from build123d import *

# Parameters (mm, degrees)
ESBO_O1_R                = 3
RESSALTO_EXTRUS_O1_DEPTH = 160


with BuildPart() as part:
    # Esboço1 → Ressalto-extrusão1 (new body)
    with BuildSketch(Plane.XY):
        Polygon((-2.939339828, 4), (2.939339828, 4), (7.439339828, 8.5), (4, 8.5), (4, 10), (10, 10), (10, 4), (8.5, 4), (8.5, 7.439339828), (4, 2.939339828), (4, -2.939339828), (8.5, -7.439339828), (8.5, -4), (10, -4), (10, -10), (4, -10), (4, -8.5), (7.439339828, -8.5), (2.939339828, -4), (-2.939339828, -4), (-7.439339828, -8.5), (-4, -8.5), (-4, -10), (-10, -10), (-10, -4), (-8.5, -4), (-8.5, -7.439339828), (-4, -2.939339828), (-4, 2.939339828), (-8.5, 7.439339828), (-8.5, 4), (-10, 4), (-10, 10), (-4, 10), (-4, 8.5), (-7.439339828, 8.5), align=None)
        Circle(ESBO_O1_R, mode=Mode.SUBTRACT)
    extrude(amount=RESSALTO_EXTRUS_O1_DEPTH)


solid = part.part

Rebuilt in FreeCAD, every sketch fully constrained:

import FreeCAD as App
import Part
import Sketcher

doc = App.newDocument("Part")
body = doc.addObject("PartDesign::Body", "Body")

# Sketch on XY plane
sketch1 = body.newObject("Sketcher::SketchObject", "Sketch")
sketch1.AttachmentSupport = (doc.getObject("XY_Plane"), [""])
sketch1.MapMode = "FlatFace"
sketch1.addGeometry(Part.LineSegment(App.Vector(2.9, 4, 0), App.Vector(-2.9, 4, 0)), False)
sketch1.addGeometry(Part.LineSegment(App.Vector(-2.9, 4, 0), App.Vector(-7.4, 8.5, 0)), False)
sketch1.addGeometry(Part.LineSegment(App.Vector(-7.4, 8.5, 0), App.Vector(-4, 8.5, 0)), False)
sketch1.addGeometry(Part.LineSegment(App.Vector(-4, 8.5, 0), App.Vector(-4, 10, 0)), False)
sketch1.addGeometry(Part.LineSegment(App.Vector(-4, 10, 0), App.Vector(-10, 10, 0)), False)
sketch1.addGeometry(Part.LineSegment(App.Vector(-10, 10, 0), App.Vector(-10, 4, 0)), False)
sketch1.addGeometry(Part.LineSegment(App.Vector(-10, 4, 0), App.Vector(-8.5, 4, 0)), False)
sketch1.addGeometry(Part.LineSegment(App.Vector(-8.5, 4, 0), App.Vector(-8.5, 7.4, 0)), False)
sketch1.addGeometry(Part.LineSegment(App.Vector(-8.5, 7.4, 0), App.Vector(-4, 2.9, 0)), False)
sketch1.addGeometry(Part.LineSegment(App.Vector(-4, 2.9, 0), App.Vector(-4, -2.9, 0)), False)
sketch1.addGeometry(Part.LineSegment(App.Vector(-4, -2.9, 0), App.Vector(-8.5, -7.4, 0)), False)
sketch1.addGeometry(Part.LineSegment(App.Vector(-8.5, -7.4, 0), App.Vector(-8.5, -4, 0)), False)
sketch1.addGeometry(Part.LineSegment(App.Vector(-8.5, -4, 0), App.Vector(-10, -4, 0)), False)
sketch1.addGeometry(Part.LineSegment(App.Vector(-10, -4, 0), App.Vector(-10, -10, 0)), False)
sketch1.addGeometry(Part.LineSegment(App.Vector(-10, -10, 0), App.Vector(-4, -10, 0)), False)
sketch1.addGeometry(Part.LineSegment(App.Vector(-4, -10, 0), App.Vector(-4, -8.5, 0)), False)
sketch1.addGeometry(Part.LineSegment(App.Vector(-4, -8.5, 0), App.Vector(-7.4, -8.5, 0)), False)
sketch1.addGeometry(Part.LineSegment(App.Vector(-7.4, -8.5, 0), App.Vector(-2.9, -4, 0)), False)
sketch1.addGeometry(Part.LineSegment(App.Vector(-2.9, -4, 0), App.Vector(2.9, -4, 0)), False)
sketch1.addGeometry(Part.LineSegment(App.Vector(2.9, -4, 0), App.Vector(7.4, -8.5, 0)), False)
sketch1.addGeometry(Part.LineSegment(App.Vector(7.4, -8.5, 0), App.Vector(4, -8.5, 0)), False)
sketch1.addGeometry(Part.LineSegment(App.Vector(4, -8.5, 0), App.Vector(4, -10, 0)), False)
sketch1.addGeometry(Part.LineSegment(App.Vector(4, -10, 0), App.Vector(10, -10, 0)), False)
sketch1.addGeometry(Part.LineSegment(App.Vector(10, -10, 0), App.Vector(10, -4, 0)), False)
sketch1.addGeometry(Part.LineSegment(App.Vector(10, -4, 0), App.Vector(8.5, -4, 0)), False)
sketch1.addGeometry(Part.LineSegment(App.Vector(8.5, -4, 0), App.Vector(8.5, -7.4, 0)), False)
sketch1.addGeometry(Part.LineSegment(App.Vector(8.5, -7.4, 0), App.Vector(4, -2.9, 0)), False)
sketch1.addGeometry(Part.LineSegment(App.Vector(4, -2.9, 0), App.Vector(4, 2.9, 0)), False)
sketch1.addGeometry(Part.LineSegment(App.Vector(4, 2.9, 0), App.Vector(8.5, 7.4, 0)), False)
sketch1.addGeometry(Part.LineSegment(App.Vector(8.5, 7.4, 0), App.Vector(8.5, 4, 0)), False)
sketch1.addGeometry(Part.LineSegment(App.Vector(8.5, 4, 0), App.Vector(10, 4, 0)), False)
sketch1.addGeometry(Part.LineSegment(App.Vector(10, 4, 0), App.Vector(10, 10, 0)), False)
sketch1.addGeometry(Part.LineSegment(App.Vector(10, 10, 0), App.Vector(4, 10, 0)), False)
sketch1.addGeometry(Part.LineSegment(App.Vector(4, 10, 0), App.Vector(4, 8.5, 0)), False)
sketch1.addGeometry(Part.LineSegment(App.Vector(4, 8.5, 0), App.Vector(7.4, 8.5, 0)), False)
sketch1.addGeometry(Part.LineSegment(App.Vector(7.4, 8.5, 0), App.Vector(2.9, 4, 0)), False)
sketch1.addGeometry(Part.Circle(App.Vector(0, 0, 0), App.Vector(0, 0, 1), 3), False)
sketch1.addConstraint(Sketcher.Constraint("Coincident", 0, 2, 1, 1))
sketch1.addConstraint(Sketcher.Constraint("Coincident", 1, 2, 2, 1))
sketch1.addConstraint(Sketcher.Constraint("Coincident", 2, 2, 3, 1))
sketch1.addConstraint(Sketcher.Constraint("Coincident", 3, 2, 4, 1))
sketch1.addConstraint(Sketcher.Constraint("Coincident", 4, 2, 5, 1))
sketch1.addConstraint(Sketcher.Constraint("Coincident", 5, 2, 6, 1))
sketch1.addConstraint(Sketcher.Constraint("Coincident", 6, 2, 7, 1))
sketch1.addConstraint(Sketcher.Constraint("Coincident", 7, 2, 8, 1))
sketch1.addConstraint(Sketcher.Constraint("Coincident", 8, 2, 9, 1))
sketch1.addConstraint(Sketcher.Constraint("Coincident", 9, 2, 10, 1))
sketch1.addConstraint(Sketcher.Constraint("Coincident", 10, 2, 11, 1))
sketch1.addConstraint(Sketcher.Constraint("Coincident", 11, 2, 12, 1))
sketch1.addConstraint(Sketcher.Constraint("Coincident", 12, 2, 13, 1))
sketch1.addConstraint(Sketcher.Constraint("Coincident", 13, 2, 14, 1))
sketch1.addConstraint(Sketcher.Constraint("Coincident", 14, 2, 15, 1))
sketch1.addConstraint(Sketcher.Constraint("Coincident", 15, 2, 16, 1))
sketch1.addConstraint(Sketcher.Constraint("Coincident", 16, 2, 17, 1))
sketch1.addConstraint(Sketcher.Constraint("Coincident", 17, 2, 18, 1))
sketch1.addConstraint(Sketcher.Constraint("Coincident", 18, 2, 19, 1))
sketch1.addConstraint(Sketcher.Constraint("Coincident", 19, 2, 20, 1))
sketch1.addConstraint(Sketcher.Constraint("Coincident", 20, 2, 21, 1))
sketch1.addConstraint(Sketcher.Constraint("Coincident", 21, 2, 22, 1))
sketch1.addConstraint(Sketcher.Constraint("Coincident", 22, 2, 23, 1))
sketch1.addConstraint(Sketcher.Constraint("Coincident", 23, 2, 24, 1))
sketch1.addConstraint(Sketcher.Constraint("Coincident", 24, 2, 25, 1))
sketch1.addConstraint(Sketcher.Constraint("Coincident", 25, 2, 26, 1))
sketch1.addConstraint(Sketcher.Constraint("Coincident", 26, 2, 27, 1))
sketch1.addConstraint(Sketcher.Constraint("Coincident", 27, 2, 28, 1))
sketch1.addConstraint(Sketcher.Constraint("Coincident", 28, 2, 29, 1))
sketch1.addConstraint(Sketcher.Constraint("Coincident", 29, 2, 30, 1))
sketch1.addConstraint(Sketcher.Constraint("Coincident", 30, 2, 31, 1))
sketch1.addConstraint(Sketcher.Constraint("Coincident", 31, 2, 32, 1))
sketch1.addConstraint(Sketcher.Constraint("Coincident", 32, 2, 33, 1))
sketch1.addConstraint(Sketcher.Constraint("Coincident", 33, 2, 34, 1))
sketch1.addConstraint(Sketcher.Constraint("Coincident", 34, 2, 35, 1))
sketch1.addConstraint(Sketcher.Constraint("Coincident", 35, 2, 0, 1))
sketch1.addConstraint(Sketcher.Constraint("Horizontal", 0))
sketch1.addConstraint(Sketcher.Constraint("Horizontal", 2))
sketch1.addConstraint(Sketcher.Constraint("Vertical", 3))
sketch1.addConstraint(Sketcher.Constraint("Horizontal", 4))
sketch1.addConstraint(Sketcher.Constraint("Vertical", 5))
sketch1.addConstraint(Sketcher.Constraint("Horizontal", 6))
sketch1.addConstraint(Sketcher.Constraint("Vertical", 7))
sketch1.addConstraint(Sketcher.Constraint("Vertical", 9))
sketch1.addConstraint(Sketcher.Constraint("Vertical", 11))
sketch1.addConstraint(Sketcher.Constraint("Horizontal", 12))
sketch1.addConstraint(Sketcher.Constraint("Vertical", 13))
sketch1.addConstraint(Sketcher.Constraint("Horizontal", 14))
sketch1.addConstraint(Sketcher.Constraint("Vertical", 15))
sketch1.addConstraint(Sketcher.Constraint("Horizontal", 16))
sketch1.addConstraint(Sketcher.Constraint("Horizontal", 18))
sketch1.addConstraint(Sketcher.Constraint("Horizontal", 20))
sketch1.addConstraint(Sketcher.Constraint("Vertical", 21))
sketch1.addConstraint(Sketcher.Constraint("Horizontal", 22))
sketch1.addConstraint(Sketcher.Constraint("Vertical", 23))
sketch1.addConstraint(Sketcher.Constraint("Horizontal", 24))
sketch1.addConstraint(Sketcher.Constraint("Vertical", 25))
sketch1.addConstraint(Sketcher.Constraint("Vertical", 27))
sketch1.addConstraint(Sketcher.Constraint("Vertical", 29))
sketch1.addConstraint(Sketcher.Constraint("Horizontal", 30))
sketch1.addConstraint(Sketcher.Constraint("Vertical", 31))
sketch1.addConstraint(Sketcher.Constraint("Horizontal", 32))
sketch1.addConstraint(Sketcher.Constraint("Vertical", 33))
sketch1.addConstraint(Sketcher.Constraint("Horizontal", 34))
sketch1.addConstraint(Sketcher.Constraint("Coincident", 36, 3, -1, 1))
sketch1.addConstraint(Sketcher.Constraint("Symmetric", 0, 2, 18, 2, -1, 1))
sketch1.addConstraint(Sketcher.Constraint("Symmetric", 1, 2, 19, 2, -1, 1))
sketch1.addConstraint(Sketcher.Constraint("Symmetric", 3, 2, 21, 2, -1, 1))
sketch1.addConstraint(Sketcher.Constraint("Symmetric", 5, 2, 23, 2, -1, 1))
sketch1.addConstraint(Sketcher.Constraint("Symmetric", 7, 2, 25, 2, -1, 1))
sketch1.addConstraint(Sketcher.Constraint("Symmetric", 8, 2, 26, 2, -1, 1))
sketch1.addConstraint(Sketcher.Constraint("Symmetric", 10, 2, 28, 2, -1, 1))
sketch1.addConstraint(Sketcher.Constraint("Symmetric", 12, 2, 30, 2, -1, 1))
sketch1.addConstraint(Sketcher.Constraint("Symmetric", 14, 2, 32, 2, -1, 1))
sketch1.addConstraint(Sketcher.Constraint("Symmetric", 16, 2, 34, 2, -1, 1))
sketch1.addConstraint(Sketcher.Constraint("Symmetric", 16, 2, 19, 2, -2))
sketch1.addConstraint(Sketcher.Constraint("Symmetric", 14, 2, 21, 2, -2))
sketch1.addConstraint(Sketcher.Constraint("Symmetric", 12, 2, 23, 2, -2))
sketch1.addConstraint(Sketcher.Constraint("Symmetric", 10, 2, 25, 2, -2))
sketch1.addConstraint(Sketcher.Constraint("Parallel", 1, 8))
sketch1.addConstraint(Sketcher.Constraint("Perpendicular", 8, 10))
sketch1.addConstraint(Sketcher.Constraint("Parallel", 10, 17))
sketch1.addConstraint(Sketcher.Constraint("Perpendicular", 26, 28))
sketch1.addConstraint(Sketcher.Constraint("Parallel", 28, 35))
sketch1.addConstraint(Sketcher.Constraint("Horizontal", 0, 2, 5, 2))
sketch1.addConstraint(Sketcher.Constraint("Horizontal", 9, 2, 26, 2))
sketch1.addConstraint(Sketcher.Constraint("Vertical", 3, 2, 8, 2))
sketch1.addConstraint(Sketcher.Constraint("Equal", 30, 3))
sketch1.addConstraint(Sketcher.Constraint("Equal", 32, 5))
sketch1.addConstraint(Sketcher.Constraint("Equal", 34, 7))
sketch1.addConstraint(Sketcher.Constraint("Equal", 18, 9))
sketch1.addConstraint(Sketcher.Constraint("Diameter", 36, 6.0))
sketch1.addConstraint(Sketcher.Constraint("DistanceX", 4, 2, 4, 1, 6.0))
sketch1.addConstraint(Sketcher.Constraint("DistanceX", 6, 1, 6, 2, 1.5))
sketch1.addConstraint(Sketcher.Constraint("DistanceY", -1, 1, 0, 2, 4.0))
sketch1.addConstraint(Sketcher.Constraint("DistanceX", 0, 2, 0, 1, 5.87868))
pad1 = body.newObject("PartDesign::Pad", "Pad")
pad1.Profile = sketch1
pad1.Length = 160

doc.recompute()
